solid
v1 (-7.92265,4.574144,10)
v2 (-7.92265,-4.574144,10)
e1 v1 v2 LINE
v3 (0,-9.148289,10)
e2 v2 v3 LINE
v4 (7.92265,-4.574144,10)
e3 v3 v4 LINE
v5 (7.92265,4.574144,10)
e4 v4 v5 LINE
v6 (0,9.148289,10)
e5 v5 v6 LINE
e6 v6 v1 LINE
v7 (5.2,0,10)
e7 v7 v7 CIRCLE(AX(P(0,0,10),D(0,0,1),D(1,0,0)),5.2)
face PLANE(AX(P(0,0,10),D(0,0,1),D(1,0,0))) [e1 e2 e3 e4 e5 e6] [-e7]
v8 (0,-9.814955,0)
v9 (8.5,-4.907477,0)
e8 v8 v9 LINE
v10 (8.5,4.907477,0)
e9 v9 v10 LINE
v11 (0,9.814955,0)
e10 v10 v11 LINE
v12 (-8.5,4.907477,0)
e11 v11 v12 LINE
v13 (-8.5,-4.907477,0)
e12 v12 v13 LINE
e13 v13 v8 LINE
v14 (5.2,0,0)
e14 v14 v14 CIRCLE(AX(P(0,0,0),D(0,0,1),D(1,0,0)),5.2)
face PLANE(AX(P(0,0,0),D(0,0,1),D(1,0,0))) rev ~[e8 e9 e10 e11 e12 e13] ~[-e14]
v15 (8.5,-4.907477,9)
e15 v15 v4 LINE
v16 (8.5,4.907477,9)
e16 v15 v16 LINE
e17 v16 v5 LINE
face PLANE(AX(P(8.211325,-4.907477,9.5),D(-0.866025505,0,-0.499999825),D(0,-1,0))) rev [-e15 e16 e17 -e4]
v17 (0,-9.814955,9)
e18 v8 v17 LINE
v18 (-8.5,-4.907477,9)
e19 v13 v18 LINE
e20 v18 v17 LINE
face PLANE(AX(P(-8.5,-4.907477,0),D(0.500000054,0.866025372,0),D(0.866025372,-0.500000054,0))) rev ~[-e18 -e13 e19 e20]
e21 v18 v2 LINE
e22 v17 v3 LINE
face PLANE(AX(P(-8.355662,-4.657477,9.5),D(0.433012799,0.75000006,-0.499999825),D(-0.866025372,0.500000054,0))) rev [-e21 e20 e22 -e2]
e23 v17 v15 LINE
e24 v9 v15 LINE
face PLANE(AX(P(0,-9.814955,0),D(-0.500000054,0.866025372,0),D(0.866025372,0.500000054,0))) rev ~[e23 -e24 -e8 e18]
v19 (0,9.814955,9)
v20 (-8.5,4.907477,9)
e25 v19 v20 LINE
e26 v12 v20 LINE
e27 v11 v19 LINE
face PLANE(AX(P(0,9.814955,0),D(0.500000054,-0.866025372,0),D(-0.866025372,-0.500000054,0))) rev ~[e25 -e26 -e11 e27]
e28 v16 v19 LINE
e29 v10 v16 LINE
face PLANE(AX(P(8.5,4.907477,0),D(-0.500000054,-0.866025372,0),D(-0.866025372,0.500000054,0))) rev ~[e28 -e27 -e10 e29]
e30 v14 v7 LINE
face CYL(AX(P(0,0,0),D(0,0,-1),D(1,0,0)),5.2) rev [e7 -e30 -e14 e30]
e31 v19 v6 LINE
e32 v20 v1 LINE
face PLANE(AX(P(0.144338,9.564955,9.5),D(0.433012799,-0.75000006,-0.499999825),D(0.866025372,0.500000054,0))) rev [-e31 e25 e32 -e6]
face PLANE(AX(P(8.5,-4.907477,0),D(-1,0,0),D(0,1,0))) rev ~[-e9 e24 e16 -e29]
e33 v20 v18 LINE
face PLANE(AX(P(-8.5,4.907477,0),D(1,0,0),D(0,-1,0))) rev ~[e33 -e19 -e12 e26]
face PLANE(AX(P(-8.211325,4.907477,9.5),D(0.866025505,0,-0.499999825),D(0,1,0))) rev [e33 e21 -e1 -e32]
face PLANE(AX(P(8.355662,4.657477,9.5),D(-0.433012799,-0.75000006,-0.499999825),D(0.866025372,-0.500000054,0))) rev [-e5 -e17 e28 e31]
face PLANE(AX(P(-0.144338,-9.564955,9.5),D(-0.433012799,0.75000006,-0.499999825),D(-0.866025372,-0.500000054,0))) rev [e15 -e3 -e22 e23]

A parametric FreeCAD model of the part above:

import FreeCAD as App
import Part
import Sketcher
from FreeCAD import Vector
Q = App.Units.Quantity


def edges_at(feature, points):
    """Names of the edges that pass closest to the given points."""
    edges = feature.Shape.Edges
    near = lambda p: min(range(len(edges)), key=lambda i: edges[i].distToShape(Part.Vertex(*p))[0])
    return sorted({f"Edge{near(p) + 1}" for p in points})


def add_polygon(sketch, points):
    """Adds a closed chain of lines whose ends are joined by coincident constraints."""
    first, n = sketch.GeometryCount, len(points)
    for a, b in zip(points, points[1:] + points[:1]):
        sketch.addGeometry(Part.LineSegment(App.Vector(*a, 0), App.Vector(*b, 0)), False)
    for i in range(n):
        sketch.addConstraint(Sketcher.Constraint("Coincident", first + i, 2, first + (i + 1) % n, 1))

doc = App.newDocument("Part")
body = doc.addObject("PartDesign::Body", "Body")

# Sketch on XY plane
sketch1 = body.newObject("Sketcher::SketchObject", "Sketch")
sketch1.AttachmentSupport = (doc.getObject("XY_Plane"), [""])
sketch1.MapMode = "FlatFace"
add_polygon(sketch1, [(8, -5), (8, 5), (0, 10), (-8, 5), (-8, -5), (0, -10)])  # lines 0-5
sketch1.addGeometry(Part.Circle(Vector(0, 0, 0), Vector(0, 0, 1), 5), False)  # 6
sketch1.addConstraint(Sketcher.Constraint("Vertical", 0))
sketch1.addConstraint(Sketcher.Constraint("Vertical", 3))
sketch1.addConstraint(Sketcher.Constraint("Coincident", 6, 3, -1, 1))
sketch1.addConstraint(Sketcher.Constraint("Symmetric", 0, 2, 3, 2, -1, 1))
sketch1.addConstraint(Sketcher.Constraint("Symmetric", 1, 2, 4, 2, -1, 1))
sketch1.addConstraint(Sketcher.Constraint("PointOnObject", 1, 2, -2))
sketch1.addConstraint(Sketcher.Constraint("Parallel", 2, 5))
sketch1.addConstraint(Sketcher.Constraint("Horizontal", 0, 2, 2, 2))
sketch1.addConstraint(Sketcher.Constraint("Diameter", 6, 10.4))
sketch1.addConstraint(Sketcher.Constraint("Angle", 1, Q("149.999996 deg")))
sketch1.addConstraint(Sketcher.Constraint("DistanceX", 2, 2, 0, 2, 17.0))
sketch1.addConstraint(Sketcher.Constraint("DistanceY", 0, 1, 0, 2, 9.814954))
pad1 = body.newObject("PartDesign::Pad", "Pad")
pad1.Profile = sketch1
pad1.Length = 10
doc.recompute()

chamfer = body.newObject("PartDesign::Chamfer", "Chamfer")
chamfer.Base = (pad1, edges_at(pad1, [
    (-4.25, 7.361, 10),
    (4.25, 7.361, 10),
    (8.5, 0, 10),
    (4.25, -7.361, 10),
    (-4.25, -7.361, 10),
    (-8.5, 0, 10),
]))
chamfer.ChamferType = "Two distances"
chamfer.Size = 1
chamfer.Size2 = 0.57735

doc.recompute()
